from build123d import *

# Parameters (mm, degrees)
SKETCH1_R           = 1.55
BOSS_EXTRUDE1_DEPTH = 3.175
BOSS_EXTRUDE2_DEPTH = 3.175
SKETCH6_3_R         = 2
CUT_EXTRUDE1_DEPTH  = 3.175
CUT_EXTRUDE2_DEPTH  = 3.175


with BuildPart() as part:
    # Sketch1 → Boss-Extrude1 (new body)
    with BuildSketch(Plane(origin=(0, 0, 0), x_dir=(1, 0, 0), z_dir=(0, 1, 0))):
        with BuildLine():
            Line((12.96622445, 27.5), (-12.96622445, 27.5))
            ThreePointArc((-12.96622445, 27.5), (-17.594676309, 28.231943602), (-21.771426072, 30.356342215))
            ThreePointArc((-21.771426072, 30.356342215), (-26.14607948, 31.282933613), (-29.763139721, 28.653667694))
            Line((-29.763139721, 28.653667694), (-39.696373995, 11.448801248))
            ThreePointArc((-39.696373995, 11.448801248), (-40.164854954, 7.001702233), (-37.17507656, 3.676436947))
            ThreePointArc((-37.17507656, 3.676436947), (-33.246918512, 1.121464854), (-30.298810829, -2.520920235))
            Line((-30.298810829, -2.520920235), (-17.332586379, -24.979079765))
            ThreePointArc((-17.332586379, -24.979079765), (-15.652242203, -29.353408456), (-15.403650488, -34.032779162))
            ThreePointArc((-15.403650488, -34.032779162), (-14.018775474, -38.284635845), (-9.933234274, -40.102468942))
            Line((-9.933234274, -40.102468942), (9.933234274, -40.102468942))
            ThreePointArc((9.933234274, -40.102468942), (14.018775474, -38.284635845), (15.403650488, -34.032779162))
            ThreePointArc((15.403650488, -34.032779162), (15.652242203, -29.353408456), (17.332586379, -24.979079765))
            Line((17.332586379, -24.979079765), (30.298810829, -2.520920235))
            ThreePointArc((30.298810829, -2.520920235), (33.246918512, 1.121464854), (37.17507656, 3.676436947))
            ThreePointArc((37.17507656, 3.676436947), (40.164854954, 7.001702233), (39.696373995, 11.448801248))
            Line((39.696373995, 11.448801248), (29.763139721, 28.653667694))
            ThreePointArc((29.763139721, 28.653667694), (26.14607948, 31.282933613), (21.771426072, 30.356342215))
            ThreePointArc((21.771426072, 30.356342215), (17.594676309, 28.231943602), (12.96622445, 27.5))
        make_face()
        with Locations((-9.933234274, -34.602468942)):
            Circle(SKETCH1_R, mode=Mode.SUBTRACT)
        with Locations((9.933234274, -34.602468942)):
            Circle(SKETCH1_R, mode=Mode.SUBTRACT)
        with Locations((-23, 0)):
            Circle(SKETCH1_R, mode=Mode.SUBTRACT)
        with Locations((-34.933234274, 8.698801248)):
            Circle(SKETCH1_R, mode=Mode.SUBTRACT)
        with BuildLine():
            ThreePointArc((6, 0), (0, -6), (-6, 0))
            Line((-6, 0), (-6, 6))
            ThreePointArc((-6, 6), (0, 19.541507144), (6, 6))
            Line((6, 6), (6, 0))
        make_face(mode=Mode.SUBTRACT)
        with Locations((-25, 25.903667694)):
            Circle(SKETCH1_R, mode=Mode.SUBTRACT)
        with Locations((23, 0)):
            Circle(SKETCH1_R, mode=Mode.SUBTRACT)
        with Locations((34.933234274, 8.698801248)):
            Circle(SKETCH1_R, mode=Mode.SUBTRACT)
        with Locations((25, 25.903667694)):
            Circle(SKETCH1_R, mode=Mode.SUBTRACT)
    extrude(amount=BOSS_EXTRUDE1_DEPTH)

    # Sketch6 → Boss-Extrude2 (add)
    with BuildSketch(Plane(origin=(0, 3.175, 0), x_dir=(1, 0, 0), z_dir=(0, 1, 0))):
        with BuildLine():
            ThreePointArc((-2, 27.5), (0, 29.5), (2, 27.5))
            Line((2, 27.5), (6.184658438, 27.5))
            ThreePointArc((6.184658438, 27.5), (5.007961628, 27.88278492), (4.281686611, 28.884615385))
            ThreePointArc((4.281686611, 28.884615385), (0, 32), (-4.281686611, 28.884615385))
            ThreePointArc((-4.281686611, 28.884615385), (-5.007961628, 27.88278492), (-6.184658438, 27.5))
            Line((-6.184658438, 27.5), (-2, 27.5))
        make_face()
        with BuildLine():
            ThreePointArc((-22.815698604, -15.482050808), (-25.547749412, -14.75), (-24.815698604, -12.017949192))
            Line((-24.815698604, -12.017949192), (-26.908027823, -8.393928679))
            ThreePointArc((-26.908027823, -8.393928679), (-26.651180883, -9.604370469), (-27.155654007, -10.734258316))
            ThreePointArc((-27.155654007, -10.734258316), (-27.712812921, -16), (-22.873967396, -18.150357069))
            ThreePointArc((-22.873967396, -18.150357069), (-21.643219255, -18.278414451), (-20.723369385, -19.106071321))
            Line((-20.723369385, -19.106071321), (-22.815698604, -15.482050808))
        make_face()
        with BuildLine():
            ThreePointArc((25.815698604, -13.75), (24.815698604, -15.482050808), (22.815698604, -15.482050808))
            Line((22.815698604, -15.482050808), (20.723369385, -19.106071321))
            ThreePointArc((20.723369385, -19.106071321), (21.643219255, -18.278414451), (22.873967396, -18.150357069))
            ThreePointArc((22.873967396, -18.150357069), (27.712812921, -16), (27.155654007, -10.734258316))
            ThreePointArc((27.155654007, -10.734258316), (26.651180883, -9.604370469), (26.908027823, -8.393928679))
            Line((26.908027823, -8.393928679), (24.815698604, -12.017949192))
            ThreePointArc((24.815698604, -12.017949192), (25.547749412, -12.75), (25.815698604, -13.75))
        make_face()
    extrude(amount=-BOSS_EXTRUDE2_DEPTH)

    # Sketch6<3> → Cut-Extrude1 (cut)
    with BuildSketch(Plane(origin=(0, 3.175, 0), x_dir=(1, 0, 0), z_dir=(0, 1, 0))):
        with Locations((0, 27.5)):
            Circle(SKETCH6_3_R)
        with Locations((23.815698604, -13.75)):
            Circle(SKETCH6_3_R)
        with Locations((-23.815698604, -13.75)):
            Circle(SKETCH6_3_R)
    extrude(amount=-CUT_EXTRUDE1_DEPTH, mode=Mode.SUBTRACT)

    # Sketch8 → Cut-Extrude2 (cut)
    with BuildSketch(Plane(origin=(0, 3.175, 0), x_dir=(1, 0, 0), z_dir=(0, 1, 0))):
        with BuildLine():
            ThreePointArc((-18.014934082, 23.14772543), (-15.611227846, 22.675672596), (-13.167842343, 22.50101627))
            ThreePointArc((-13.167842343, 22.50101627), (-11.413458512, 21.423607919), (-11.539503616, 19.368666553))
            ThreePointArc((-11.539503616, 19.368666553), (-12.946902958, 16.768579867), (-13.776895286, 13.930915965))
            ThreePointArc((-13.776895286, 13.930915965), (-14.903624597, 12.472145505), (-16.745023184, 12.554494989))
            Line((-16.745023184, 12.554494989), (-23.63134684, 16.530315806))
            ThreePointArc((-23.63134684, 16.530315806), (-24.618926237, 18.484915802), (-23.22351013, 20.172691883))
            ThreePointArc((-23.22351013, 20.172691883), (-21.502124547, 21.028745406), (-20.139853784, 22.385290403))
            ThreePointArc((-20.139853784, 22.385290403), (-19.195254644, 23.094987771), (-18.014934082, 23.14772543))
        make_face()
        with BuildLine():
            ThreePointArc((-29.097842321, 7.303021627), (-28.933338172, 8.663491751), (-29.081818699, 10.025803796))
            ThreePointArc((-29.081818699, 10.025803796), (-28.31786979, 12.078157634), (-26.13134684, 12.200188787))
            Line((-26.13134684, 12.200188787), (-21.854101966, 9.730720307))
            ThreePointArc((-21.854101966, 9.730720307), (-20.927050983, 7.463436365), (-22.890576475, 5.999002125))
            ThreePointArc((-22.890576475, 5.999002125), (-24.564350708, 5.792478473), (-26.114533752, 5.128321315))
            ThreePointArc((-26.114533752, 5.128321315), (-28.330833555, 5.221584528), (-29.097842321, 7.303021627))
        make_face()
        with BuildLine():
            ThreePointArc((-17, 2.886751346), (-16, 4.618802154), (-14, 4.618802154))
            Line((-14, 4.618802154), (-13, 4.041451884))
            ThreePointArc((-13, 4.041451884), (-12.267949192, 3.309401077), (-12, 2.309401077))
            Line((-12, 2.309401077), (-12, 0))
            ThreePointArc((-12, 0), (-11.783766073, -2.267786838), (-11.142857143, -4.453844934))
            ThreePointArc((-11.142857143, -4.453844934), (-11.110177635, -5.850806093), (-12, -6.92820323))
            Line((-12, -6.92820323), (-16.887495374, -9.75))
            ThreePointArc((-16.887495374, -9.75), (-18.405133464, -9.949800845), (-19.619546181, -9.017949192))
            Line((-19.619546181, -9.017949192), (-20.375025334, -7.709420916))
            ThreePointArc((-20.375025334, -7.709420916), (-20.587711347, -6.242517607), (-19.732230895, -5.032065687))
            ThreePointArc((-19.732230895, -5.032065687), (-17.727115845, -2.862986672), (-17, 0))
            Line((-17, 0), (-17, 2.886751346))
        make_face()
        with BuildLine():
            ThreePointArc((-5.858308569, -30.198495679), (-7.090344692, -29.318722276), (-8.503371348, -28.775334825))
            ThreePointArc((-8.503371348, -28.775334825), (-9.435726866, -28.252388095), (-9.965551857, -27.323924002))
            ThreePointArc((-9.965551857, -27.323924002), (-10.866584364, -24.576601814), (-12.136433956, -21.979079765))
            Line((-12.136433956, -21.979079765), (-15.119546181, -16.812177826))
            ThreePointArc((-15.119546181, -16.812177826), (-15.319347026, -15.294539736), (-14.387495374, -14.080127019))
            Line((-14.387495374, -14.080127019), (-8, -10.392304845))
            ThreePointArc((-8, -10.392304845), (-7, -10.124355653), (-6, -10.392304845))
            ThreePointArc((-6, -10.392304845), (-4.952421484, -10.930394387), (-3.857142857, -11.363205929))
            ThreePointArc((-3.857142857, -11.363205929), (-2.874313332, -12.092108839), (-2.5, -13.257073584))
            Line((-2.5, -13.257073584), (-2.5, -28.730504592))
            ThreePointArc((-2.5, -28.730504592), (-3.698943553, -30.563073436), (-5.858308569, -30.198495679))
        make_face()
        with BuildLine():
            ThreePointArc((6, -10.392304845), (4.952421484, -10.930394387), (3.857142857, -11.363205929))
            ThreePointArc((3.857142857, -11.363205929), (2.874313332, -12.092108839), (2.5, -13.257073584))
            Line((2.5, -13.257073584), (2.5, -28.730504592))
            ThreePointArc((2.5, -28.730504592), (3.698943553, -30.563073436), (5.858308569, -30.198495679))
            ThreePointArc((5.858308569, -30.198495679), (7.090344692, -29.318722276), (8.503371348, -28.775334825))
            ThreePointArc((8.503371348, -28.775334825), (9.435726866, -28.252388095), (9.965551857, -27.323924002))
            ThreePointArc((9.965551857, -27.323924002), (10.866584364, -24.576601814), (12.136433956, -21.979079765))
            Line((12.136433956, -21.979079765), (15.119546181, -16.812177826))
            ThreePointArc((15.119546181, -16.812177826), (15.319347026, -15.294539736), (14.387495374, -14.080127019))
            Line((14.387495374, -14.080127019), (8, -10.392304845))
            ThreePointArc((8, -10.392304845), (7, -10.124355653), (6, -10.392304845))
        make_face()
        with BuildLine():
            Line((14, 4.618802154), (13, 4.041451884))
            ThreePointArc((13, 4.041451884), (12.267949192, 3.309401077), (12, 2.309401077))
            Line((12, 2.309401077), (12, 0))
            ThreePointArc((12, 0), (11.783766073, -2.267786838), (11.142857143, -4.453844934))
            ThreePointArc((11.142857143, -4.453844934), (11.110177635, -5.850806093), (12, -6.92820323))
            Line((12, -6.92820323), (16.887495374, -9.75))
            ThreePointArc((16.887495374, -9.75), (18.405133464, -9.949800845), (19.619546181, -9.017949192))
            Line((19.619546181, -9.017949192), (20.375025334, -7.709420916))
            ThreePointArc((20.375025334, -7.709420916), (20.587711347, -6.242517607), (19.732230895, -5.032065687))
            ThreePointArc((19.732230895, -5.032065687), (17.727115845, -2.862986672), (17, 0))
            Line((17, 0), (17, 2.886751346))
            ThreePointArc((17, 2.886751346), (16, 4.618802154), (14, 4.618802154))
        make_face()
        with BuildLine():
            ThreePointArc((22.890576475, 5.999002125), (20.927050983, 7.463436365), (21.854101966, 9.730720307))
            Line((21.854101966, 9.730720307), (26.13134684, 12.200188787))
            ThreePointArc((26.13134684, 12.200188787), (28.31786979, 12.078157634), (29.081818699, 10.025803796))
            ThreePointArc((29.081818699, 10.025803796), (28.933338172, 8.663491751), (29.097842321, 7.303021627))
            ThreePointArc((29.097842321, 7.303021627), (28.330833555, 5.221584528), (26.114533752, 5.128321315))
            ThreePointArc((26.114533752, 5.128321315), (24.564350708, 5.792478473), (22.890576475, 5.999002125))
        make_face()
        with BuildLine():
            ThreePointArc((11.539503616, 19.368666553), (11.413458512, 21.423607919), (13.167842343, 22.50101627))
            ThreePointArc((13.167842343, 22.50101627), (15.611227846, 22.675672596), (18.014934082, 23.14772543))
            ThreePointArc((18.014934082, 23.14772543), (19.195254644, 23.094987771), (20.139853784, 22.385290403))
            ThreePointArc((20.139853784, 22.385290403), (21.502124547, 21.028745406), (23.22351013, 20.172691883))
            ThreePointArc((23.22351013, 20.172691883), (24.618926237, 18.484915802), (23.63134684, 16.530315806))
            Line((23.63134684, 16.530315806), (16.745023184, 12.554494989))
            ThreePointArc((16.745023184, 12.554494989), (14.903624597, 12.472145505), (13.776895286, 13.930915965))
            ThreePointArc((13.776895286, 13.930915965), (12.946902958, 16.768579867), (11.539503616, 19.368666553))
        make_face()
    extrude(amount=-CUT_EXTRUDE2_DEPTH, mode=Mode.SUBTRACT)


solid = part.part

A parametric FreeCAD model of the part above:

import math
import FreeCAD as App
import Part
import Sketcher

V = App.Vector
Q = App.Units.Quantity

doc = App.newDocument("Part")
body = doc.addObject("PartDesign::Body", "Body")

# Sketch on XZ plane
sketch1 = body.newObject("Sketcher::SketchObject", "Sketch")
sketch1.AttachmentSupport = (doc.getObject("XZ_Plane"), [""])
sketch1.MapMode = "FlatFace"
sketch1.addGeometry([
    Part.LineSegment(V(13, -27.5, 0), V(-13, -27.5, 0)),  # 0
    Part.ArcOfCircle(Part.Circle(V(-13, -42.5, 0), V(0, 0, 1), 15), math.radians(90), math.radians(126)),  # 1
    Part.ArcOfCircle(Part.Circle(V(-25, -25.9, 0), V(0, 0, 1), 5.5), math.radians(-150), math.radians(-54)),  # 2
    Part.LineSegment(V(-29.8, -28.7, 0), V(-39.7, -11.4, 0)),  # 3
    Part.ArcOfCircle(Part.Circle(V(-34.9, -8.7, 0), V(0, 0, 1), 5.5), math.radians(114), math.radians(210)),  # 4
    Part.ArcOfCircle(Part.Circle(V(-43.3, 10, 0), V(0, 0, 1), 15), math.radians(-66), math.radians(-30)),  # 5
    Part.LineSegment(V(-30.3, 2.5, 0), V(-17.3, 25, 0)),  # 6
    Part.ArcOfCircle(Part.Circle(V(-30.3, 32.5, 0), V(0, 0, 1), 15), math.radians(-30), math.radians(6)),  # 7
    Part.ArcOfCircle(Part.Circle(V(-9.9, 34.6, 0), V(0, 0, 1), 5.5), math.radians(90), math.radians(186)),  # 8
    Part.LineSegment(V(-9.9, 40.1, 0), V(9.9, 40.1, 0)),  # 9
    Part.ArcOfCircle(Part.Circle(V(9.9, 34.6, 0), V(0, 0, 1), 5.5), math.radians(-6), math.radians(90)),  # 10
    Part.ArcOfCircle(Part.Circle(V(30.3, 32.5, 0), V(0, 0, 1), 15), math.radians(174), math.radians(210)),  # 11
    Part.LineSegment(V(17.3, 25, 0), V(30.3, 2.5, 0)),  # 12
    Part.ArcOfCircle(Part.Circle(V(43.3, 10, 0), V(0, 0, 1), 15), math.radians(-150), math.radians(-114)),  # 13
    Part.ArcOfCircle(Part.Circle(V(34.9, -8.7, 0), V(0, 0, 1), 5.5), math.radians(-30), math.radians(66)),  # 14
    Part.LineSegment(V(39.7, -11.4, 0), V(29.8, -28.7, 0)),  # 15
    Part.ArcOfCircle(Part.Circle(V(25, -25.9, 0), V(0, 0, 1), 5.5), math.radians(-126), math.radians(-30)),  # 16
    Part.ArcOfCircle(Part.Circle(V(13, -42.5, 0), V(0, 0, 1), 15), math.radians(54), math.radians(90)),  # 17
    Part.Circle(V(-9.9, 34.6, 0), V(0, 0, 1), 1.6),  # 18
    Part.Circle(V(9.9, 34.6, 0), V(0, 0, 1), 1.6),  # 19
    Part.Circle(V(-23, 0, 0), V(0, 0, 1), 1.6),  # 20
    Part.Circle(V(-34.9, -8.7, 0), V(0, 0, 1), 1.6),  # 21
    Part.Circle(V(-25, -25.9, 0), V(0, 0, 1), 1.6),  # 22
    Part.LineSegment(V(6, -6, 0), V(6, 0, 0)),  # 23
    Part.ArcOfCircle(Part.Circle(V(0, 0, 0), V(0, 0, 1), 6), math.radians(0), math.radians(180)),  # 24
    Part.LineSegment(V(-6, 0, 0), V(-6, -6, 0)),  # 25
    Part.ArcOfCircle(Part.Circle(V(0, -11.4, 0), V(0, 0, 1), 8.1), math.radians(138), math.radians(402)),  # 26
    Part.Circle(V(23, 0, 0), V(0, 0, 1), 1.6),  # 27
    Part.Circle(V(34.9, -8.7, 0), V(0, 0, 1), 1.6),  # 28
    Part.Circle(V(25, -25.9, 0), V(0, 0, 1), 1.6),  # 29
], False)
sketch1.addConstraint([
    Sketcher.Constraint("Tangent", 0, 2, 1, 1),
    Sketcher.Constraint("Tangent", 1, 2, 2, 2),
    Sketcher.Constraint("Tangent", 2, 1, 3, 1),
    Sketcher.Constraint("Tangent", 3, 2, 4, 2),
    Sketcher.Constraint("Tangent", 4, 1, 5, 1),
    Sketcher.Constraint("Tangent", 5, 2, 6, 1),
    Sketcher.Constraint("Tangent", 6, 2, 7, 1),
    Sketcher.Constraint("Tangent", 7, 2, 8, 2),
    Sketcher.Constraint("Tangent", 8, 1, 9, 1),
    Sketcher.Constraint("Tangent", 9, 2, 10, 2),
    Sketcher.Constraint("Tangent", 10, 1, 11, 1),
    Sketcher.Constraint("Tangent", 11, 2, 12, 1),
    Sketcher.Constraint("Tangent", 12, 2, 13, 1),
    Sketcher.Constraint("Tangent", 13, 2, 14, 2),
    Sketcher.Constraint("Tangent", 14, 1, 15, 1),
    Sketcher.Constraint("Tangent", 15, 2, 16, 2),
    Sketcher.Constraint("Tangent", 16, 1, 17, 1),
    Sketcher.Constraint("Tangent", 17, 2, 0, 1),
    Sketcher.Constraint("Tangent", 23, 2, 24, 1),
    Sketcher.Constraint("Tangent", 24, 2, 25, 1),
    Sketcher.Constraint("Coincident", 25, 2, 26, 1),
    Sketcher.Constraint("Coincident", 26, 2, 23, 1),
    Sketcher.Constraint("Horizontal", 0),
    Sketcher.Constraint("Horizontal", 9),
    Sketcher.Constraint("Vertical", 23),
    Sketcher.Constraint("Vertical", 25),
    Sketcher.Constraint("Coincident", 24, 3, -1, 1),
    Sketcher.Constraint("Coincident", 18, 3, 8, 3),
    Sketcher.Constraint("Coincident", 19, 3, 10, 3),
    Sketcher.Constraint("Coincident", 21, 3, 4, 3),
    Sketcher.Constraint("Coincident", 22, 3, 2, 3),
    Sketcher.Constraint("Coincident", 28, 3, 14, 3),
    Sketcher.Constraint("Coincident", 29, 3, 16, 3),
    Sketcher.Constraint("Equal", 2, 4),
    Sketcher.Constraint("Equal", 1, 5),
    Sketcher.Constraint("Equal", 5, 7),
    Sketcher.Constraint("Equal", 4, 8),
    Sketcher.Constraint("Equal", 8, 10),
    Sketcher.Constraint("Equal", 7, 11),
    Sketcher.Constraint("Equal", 11, 13),
    Sketcher.Constraint("Equal", 10, 14),
    Sketcher.Constraint("Equal", 14, 16),
    Sketcher.Constraint("Equal", 13, 17),
    Sketcher.Constraint("Equal", 18, 19),
    Sketcher.Constraint("Equal", 19, 20),
    Sketcher.Constraint("Equal", 20, 21),
    Sketcher.Constraint("Equal", 21, 22),
    Sketcher.Constraint("Equal", 22, 27),
    Sketcher.Constraint("Equal", 27, 28),
    Sketcher.Constraint("Equal", 28, 29),
    Sketcher.Constraint("Symmetric", 20, 3, 27, 3, -1, 1),
    Sketcher.Constraint("Symmetric", 7, 3, 11, 3, -2),
    Sketcher.Constraint("Symmetric", 5, 3, 13, 3, -2),
    Sketcher.Constraint("Symmetric", 2, 3, 16, 3, -2),
    Sketcher.Constraint("PointOnObject", 20, 3, -1),
    Sketcher.Constraint("PointOnObject", 26, 3, -2),
    Sketcher.Constraint("Parallel", 3, 12),
    Sketcher.Constraint("Parallel", 6, 15),
    Sketcher.Constraint("Radius", 1, Q("15 mm")),
    Sketcher.Constraint("Radius", 24, Q("6 mm")),
    Sketcher.Constraint("Diameter", 18, Q("3.1 mm")),
    Sketcher.Constraint("Radius", 2, Q("5.5 mm")),
    Sketcher.Constraint("Radius", 26, Q("8.1 mm")),
    Sketcher.Constraint("DistanceY", 23, 1, 23, 2, Q("6 mm")),
    Sketcher.Constraint("Angle", 3, Q("120 deg")),
    Sketcher.Constraint("DistanceX", 2, 3, -1, 1, Q("25 mm")),
    Sketcher.Constraint("DistanceX", 20, 3, -1, 1, Q("23 mm")),
    Sketcher.Constraint("DistanceX", 4, 3, 8, 3, Q("25 mm")),
    Sketcher.Constraint("DistanceY", 1, 3, -1, 1, Q("42.5 mm")),
    Sketcher.Constraint("DistanceX", 0, 2, 0, 1, Q("25.932449 mm")),
    Sketcher.Constraint("DistanceX", 9, 1, 9, 2, Q("19.866469 mm")),
    Sketcher.Constraint("DistanceX", 7, 3, 10, 3, Q("40.256202 mm")),
    Sketcher.Constraint("Distance", 6, Q("25.932449 mm")),
])
pad1 = body.newObject("PartDesign::Pad", "Pad")
pad1.Profile = sketch1
pad1.Length = 3.175
pad1.Reversed = True

# Sketch on XZ plane
sketch2 = body.newObject("Sketcher::SketchObject", "Sketch001")
sketch2.AttachmentSupport = (doc.getObject("XZ_Plane"), [""])
sketch2.MapMode = "FlatFace"
sketch2.AttachmentOffset = App.Placement(V(0, 0, -3.175), App.Rotation())
sketch2.addGeometry([
    Part.ArcOfCircle(Part.Circle(V(0, -27.5, 0), V(0, 0, 1), 2), math.radians(180), math.radians(360)),  # 0
    Part.LineSegment(V(2, -27.5, 0), V(6.2, -27.5, 0)),  # 1
    Part.ArcOfCircle(Part.Circle(V(6.2, -29.5, 0), V(0, 0, 1), 2), math.radians(90), math.radians(162)),  # 2
    Part.ArcOfCircle(Part.Circle(V(0, -27.5, 0), V(0, 0, 1), 4.5), math.radians(-162), math.radians(-18)),  # 3
    Part.ArcOfCircle(Part.Circle(V(-6.2, -29.5, 0), V(0, 0, 1), 2), math.radians(18), math.radians(90)),  # 4
    Part.LineSegment(V(-6.2, -27.5, 0), V(-2, -27.5, 0)),  # 5
    Part.ArcOfCircle(Part.Circle(V(-23.8, 13.8, 0), V(0, 0, 1), 2), math.radians(60), math.radians(240)),  # 6
    Part.LineSegment(V(-24.8, 12, 0), V(-26.9, 8.4, 0)),  # 7
    Part.ArcOfCircle(Part.Circle(V(-28.6, 9.4, 0), V(0, 0, 1), 2), math.radians(-30), math.radians(42)),  # 8
    Part.ArcOfCircle(Part.Circle(V(-23.8, 13.8, 0), V(0, 0, 1), 4.5), math.radians(78), math.radians(222)),  # 9
    Part.ArcOfCircle(Part.Circle(V(-22.5, 20.1, 0), V(0, 0, 1), 2), math.radians(-102), math.radians(-30)),  # 10
    Part.LineSegment(V(-20.7, 19.1, 0), V(-22.8, 15.5, 0)),  # 11
    Part.ArcOfCircle(Part.Circle(V(23.8, 13.8, 0), V(0, 0, 1), 2), math.radians(0), math.radians(120)),  # 12
    Part.LineSegment(V(22.8, 15.5, 0), V(20.7, 19.1, 0)),  # 13
    Part.ArcOfCircle(Part.Circle(V(22.5, 20.1, 0), V(0, 0, 1), 2), math.radians(-150), math.radians(-78)),  # 14
    Part.ArcOfCircle(Part.Circle(V(23.8, 13.8, 0), V(0, 0, 1), 4.5), math.radians(-42), math.radians(102)),  # 15
    Part.ArcOfCircle(Part.Circle(V(28.6, 9.4, 0), V(0, 0, 1), 2), math.radians(138), math.radians(210)),  # 16
    Part.LineSegment(V(26.9, 8.4, 0), V(24.8, 12, 0)),  # 17
    Part.ArcOfCircle(Part.Circle(V(23.8, 13.7, 0), V(0, 0, 1), 2), math.radians(-60), math.radians(0)),  # 18
], False)
sketch2.addConstraint([
    Sketcher.Constraint("Coincident", 0, 2, 1, 1),
    Sketcher.Constraint("Tangent", 1, 2, 2, 1),
    Sketcher.Constraint("Tangent", 2, 2, 3, 2),
    Sketcher.Constraint("Tangent", 3, 1, 4, 1),
    Sketcher.Constraint("Tangent", 4, 2, 5, 1),
    Sketcher.Constraint("Coincident", 5, 2, 0, 1),
    Sketcher.Constraint("Coincident", 6, 2, 7, 1),
    Sketcher.Constraint("Tangent", 7, 2, 8, 1),
    Sketcher.Constraint("Tangent", 8, 2, 9, 2),
    Sketcher.Constraint("Tangent", 9, 1, 10, 1),
    Sketcher.Constraint("Tangent", 10, 2, 11, 1),
    Sketcher.Constraint("Coincident", 11, 2, 6, 1),
    Sketcher.Constraint("Coincident", 12, 2, 13, 1),
    Sketcher.Constraint("Tangent", 13, 2, 14, 1),
    Sketcher.Constraint("Tangent", 14, 2, 15, 2),
    Sketcher.Constraint("Tangent", 15, 1, 16, 1),
    Sketcher.Constraint("Tangent", 16, 2, 17, 1),
    Sketcher.Constraint("Coincident", 17, 2, 18, 1),
    Sketcher.Constraint("Tangent", 18, 2, 12, 1),
    Sketcher.Constraint("Horizontal", 1),
    Sketcher.Constraint("Horizontal", 5),
    Sketcher.Constraint("Coincident", 3, 3, 0, 3),
    Sketcher.Constraint("Coincident", 9, 3, 6, 3),
    Sketcher.Constraint("Coincident", 15, 3, 12, 3),
    Sketcher.Constraint("Equal", 0, 2),
    Sketcher.Constraint("Equal", 2, 4),
    Sketcher.Constraint("Equal", 4, 6),
    Sketcher.Constraint("Equal", 6, 8),
    Sketcher.Constraint("Equal", 3, 9),
    Sketcher.Constraint("Equal", 8, 10),
    Sketcher.Constraint("Equal", 10, 12),
    Sketcher.Constraint("Equal", 12, 14),
    Sketcher.Constraint("Equal", 9, 15),
    Sketcher.Constraint("Equal", 14, 16),
    Sketcher.Constraint("Equal", 16, 18),
    Sketcher.Constraint("Symmetric", 2, 3, 4, 3, -2),
    Sketcher.Constraint("Symmetric", 6, 3, 12, 3, -2),
    Sketcher.Constraint("Symmetric", 10, 2, 13, 2, -2),
    Sketcher.Constraint("Symmetric", 7, 2, 16, 2, -2),
    Sketcher.Constraint("Parallel", 7, 11),
    Sketcher.Constraint("Horizontal", 3, 3, 0, 2),
    Sketcher.Constraint("Horizontal", 15, 3, 18, 2),
    Sketcher.Constraint("Equal", 7, 11),
    Sketcher.Constraint("Radius", 0, Q("2 mm")),
    Sketcher.Constraint("Radius", 3, Q("4.5 mm")),
    Sketcher.Constraint("Angle", 7, Q("-120 deg")),
    Sketcher.Constraint("DistanceX", 6, 2, 6, 3, Q("1 mm")),
    Sketcher.Constraint("DistanceY", 0, 3, -1, 1, Q("27.5 mm")),
    Sketcher.Constraint("DistanceY", -1, 1, 6, 3, Q("13.75 mm")),
    Sketcher.Constraint("DistanceX", 6, 3, -1, 1, Q("23.815699 mm")),
])
pad2 = body.newObject("PartDesign::Pad", "Pad001")
pad2.Profile = sketch2
pad2.Length = 3.175

# Sketch on XZ plane
sketch3 = body.newObject("Sketcher::SketchObject", "Sketch002")
sketch3.AttachmentSupport = (doc.getObject("XZ_Plane"), [""])
sketch3.MapMode = "FlatFace"
sketch3.AttachmentOffset = App.Placement(V(0, 0, -3.175), App.Rotation())
sketch3.addGeometry([
    Part.Circle(V(0, -27.5, 0), V(0, 0, 1), 2),
    Part.Circle(V(23.8, 13.8, 0), V(0, 0, 1), 2),
    Part.Circle(V(-23.8, 13.8, 0), V(0, 0, 1), 2),
], False)
sketch3.addConstraint([
    Sketcher.Constraint("Equal", 0, 1),
    Sketcher.Constraint("Equal", 1, 2),
    Sketcher.Constraint("Symmetric", 1, 3, 2, 3, -2),
    Sketcher.Constraint("PointOnObject", 0, 3, -2),
    Sketcher.Constraint("Diameter", 0, Q("4 mm")),
    Sketcher.Constraint("DistanceY", 0, 3, -1, 1, Q("27.5 mm")),
    Sketcher.Constraint("DistanceY", -1, 1, 1, 3, Q("13.75 mm")),
    Sketcher.Constraint("DistanceX", -1, 1, 1, 3, Q("23.815699 mm")),
])
pocket1 = body.newObject("PartDesign::Pocket", "Pocket")
pocket1.Profile = sketch3
pocket1.Length = 3.175
pocket1.Reversed = True

# Sketch on XZ plane
sketch4 = body.newObject("Sketcher::SketchObject", "Sketch003")
sketch4.AttachmentSupport = (doc.getObject("XZ_Plane"), [""])
sketch4.MapMode = "FlatFace"
sketch4.AttachmentOffset = App.Placement(V(0, 0, -3.175), App.Rotation())
sketch4.addGeometry([
    Part.ArcOfCircle(Part.Circle(V(-13, -42.5, 0), V(0, 0, 1), 20), math.radians(90.58), math.radians(104.62)),  # 0
    Part.ArcOfCircle(Part.Circle(V(-18.5, -21.2, 0), V(0, 0, 1), 2), math.radians(-144), math.radians(-75)),  # 1
    Part.ArcOfCircle(Part.Circle(V(-25, -25.9, 0), V(0, 0, 1), 6), math.radians(36), math.radians(73)),  # 2
    Part.ArcOfCircle(Part.Circle(V(-22.6, -18.3, 0), V(0, 0, 1), 2), math.radians(120), math.radians(253)),  # 3
    Part.LineSegment(V(-23.6, -16.5, 0), V(-16.7, -12.6, 0)),  # 4
    Part.ArcOfCircle(Part.Circle(V(-15.7, -14.3, 0), V(0, 0, 1), 2), math.radians(10), math.radians(120)),  # 5
    Part.ArcOfCircle(Part.Circle(V(0, -11.4, 0), V(0, 0, 1), 14), math.radians(-170), math.radians(-146)),  # 6
    Part.ArcOfCircle(Part.Circle(V(-13.2, -20.5, 0), V(0, 0, 1), 2), math.radians(-89), math.radians(34)),  # 7
    Part.ArcOfCircle(Part.Circle(V(-34.9, -8.7, 0), V(0, 0, 1), 6), math.radians(-13), math.radians(13)),  # 8
    Part.ArcOfCircle(Part.Circle(V(-27.2, -6.8, 0), V(0, 0, 1), 2), math.radians(59), math.radians(193)),  # 9
    Part.ArcOfCircle(Part.Circle(V(-23, 0, 0), V(0, 0, 1), 6), math.radians(-121), math.radians(-89)),  # 10
    Part.ArcOfCircle(Part.Circle(V(-22.9, -8, 0), V(0, 0, 1), 2), math.radians(-60), math.radians(91)),  # 11
    Part.LineSegment(V(-21.9, -9.7, 0), V(-26.1, -12.2, 0)),  # 12
    Part.ArcOfCircle(Part.Circle(V(-27.1, -10.5, 0), V(0, 0, 1), 2), math.radians(167), math.radians(300)),  # 13
    Part.ArcOfCircle(Part.Circle(V(-15, -2.9, 0), V(0, 0, 1), 2), math.radians(180), math.radians(300)),  # 14
    Part.LineSegment(V(-17, -2.9, 0), V(-17, 0, 0)),  # 15
    Part.ArcOfCircle(Part.Circle(V(-23, 0, 0), V(0, 0, 1), 6), math.radians(0), math.radians(57)),  # 16
    Part.ArcOfCircle(Part.Circle(V(-18.6, 6.7, 0), V(0, 0, 1), 2), math.radians(150), math.radians(237)),  # 17
    Part.LineSegment(V(-20.4, 7.7, 0), V(-19.6, 9, 0)),  # 18
    Part.ArcOfCircle(Part.Circle(V(-17.9, 8, 0), V(0, 0, 1), 2), math.radians(60), math.radians(150)),  # 19
    Part.LineSegment(V(-16.9, 9.8, 0), V(-12, 6.9, 0)),  # 20
    Part.ArcOfCircle(Part.Circle(V(-13, 5.2, 0), V(0, 0, 1), 2), math.radians(-22), math.radians(60)),  # 21
    Part.ArcOfCircle(Part.Circle(V(0, 0, 0), V(0, 0, 1), 12), math.radians(158), math.radians(180)),  # 22
    Part.LineSegment(V(-12, 0, 0), V(-12, -2.3, 0)),  # 23
    Part.ArcOfCircle(Part.Circle(V(-14, -2.3, 0), V(0, 0, 1), 2), math.radians(-60), math.radians(0)),  # 24
    Part.LineSegment(V(-13, -4, 0), V(-14, -4.6, 0)),  # 25
    Part.ArcOfCircle(Part.Circle(V(-9.9, 34.6, 0), V(0, 0, 1), 6), math.radians(-76), math.radians(-47)),  # 26
    Part.ArcOfCircle(Part.Circle(V(-4.5, 28.7, 0), V(0, 0, 1), 2), math.radians(0), math.radians(133)),  # 27
    Part.LineSegment(V(-2.5, 28.7, 0), V(-2.5, 13.3, 0)),  # 28
    Part.ArcOfCircle(Part.Circle(V(-4.5, 13.3, 0), V(0, 0, 1), 2), math.radians(-71), math.radians(0)),  # 29
    Part.ArcOfCircle(Part.Circle(V(0, 0, 0), V(0, 0, 1), 12), math.radians(108.75), math.radians(120)),  # 30
    Part.ArcOfCircle(Part.Circle(V(-7, 12.1, 0), V(0, 0, 1), 2), math.radians(-120), math.radians(-60)),  # 31
    Part.LineSegment(V(-8, 10.4, 0), V(-14.4, 14.1, 0)),  # 32
    Part.ArcOfCircle(Part.Circle(V(-13.4, 15.8, 0), V(0, 0, 1), 2), math.radians(150), math.radians(240)),  # 33
    Part.LineSegment(V(-15.1, 16.8, 0), V(-12.1, 22, 0)),  # 34
    Part.ArcOfCircle(Part.Circle(V(-30.3, 32.5, 0), V(0, 0, 1), 21), math.radians(-30), math.radians(-14.21)),  # 35
    Part.ArcOfCircle(Part.Circle(V(-8, 26.8, 0), V(0, 0, 1), 2), math.radians(104), math.radians(166)),  # 36
    Part.ArcOfCircle(Part.Circle(V(0, 0, 0), V(0, 0, 1), 12), math.radians(60), math.radians(71.25)),  # 37
    Part.ArcOfCircle(Part.Circle(V(4.5, 13.3, 0), V(0, 0, 1), 2), math.radians(-180), math.radians(-109)),  # 38
    Part.LineSegment(V(2.5, 13.3, 0), V(2.5, 28.7, 0)),  # 39
    Part.ArcOfCircle(Part.Circle(V(4.5, 28.7, 0), V(0, 0, 1), 2), math.radians(47), math.radians(180)),  # 40
    Part.ArcOfCircle(Part.Circle(V(9.9, 34.6, 0), V(0, 0, 1), 6), math.radians(-133), math.radians(-104)),  # 41
    Part.ArcOfCircle(Part.Circle(V(8, 26.8, 0), V(0, 0, 1), 2), math.radians(14), math.radians(76)),  # 42
    Part.ArcOfCircle(Part.Circle(V(30.3, 32.5, 0), V(0, 0, 1), 21), math.radians(-165.79), math.radians(-150)),  # 43
    Part.LineSegment(V(12.1, 22, 0), V(15.1, 16.8, 0)),  # 44
    Part.ArcOfCircle(Part.Circle(V(13.4, 15.8, 0), V(0, 0, 1), 2), math.radians(-60), math.radians(30)),  # 45
    Part.LineSegment(V(14.4, 14.1, 0), V(8, 10.4, 0)),  # 46
    Part.ArcOfCircle(Part.Circle(V(7, 12.1, 0), V(0, 0, 1), 2), math.radians(-120), math.radians(-60)),  # 47
    Part.LineSegment(V(14, -4.6, 0), V(13, -4, 0)),  # 48
    Part.ArcOfCircle(Part.Circle(V(14, -2.3, 0), V(0, 0, 1), 2), math.radians(180), math.radians(240)),  # 49
    Part.LineSegment(V(12, -2.3, 0), V(12, 0, 0)),  # 50
    Part.ArcOfCircle(Part.Circle(V(0, 0, 0), V(0, 0, 1), 12), math.radians(0), math.radians(22)),  # 51
    Part.ArcOfCircle(Part.Circle(V(13, 5.2, 0), V(0, 0, 1), 2), math.radians(120), math.radians(202)),  # 52
    Part.LineSegment(V(12, 6.9, 0), V(16.9, 9.8, 0)),  # 53
    Part.ArcOfCircle(Part.Circle(V(17.9, 8, 0), V(0, 0, 1), 2), math.radians(30), math.radians(120)),  # 54
    Part.LineSegment(V(19.6, 9, 0), V(20.4, 7.7, 0)),  # 55
    Part.ArcOfCircle(Part.Circle(V(18.6, 6.7, 0), V(0, 0, 1), 2), math.radians(-57), math.radians(30)),  # 56
    Part.ArcOfCircle(Part.Circle(V(23, 0, 0), V(0, 0, 1), 6), math.radians(123), math.radians(180)),  # 57
    Part.LineSegment(V(17, 0, 0), V(17, -2.9, 0)),  # 58
    Part.ArcOfCircle(Part.Circle(V(15, -2.9, 0), V(0, 0, 1), 2), math.radians(-120), math.radians(0)),  # 59
    Part.ArcOfCircle(Part.Circle(V(22.9, -8, 0), V(0, 0, 1), 2), math.radians(89), math.radians(240)),  # 60
    Part.ArcOfCircle(Part.Circle(V(23, 0, 0), V(0, 0, 1), 6), math.radians(-91), math.radians(-59)),  # 61
    Part.ArcOfCircle(Part.Circle(V(27.2, -6.8, 0), V(0, 0, 1), 2), math.radians(-13), math.radians(121)),  # 62
    Part.ArcOfCircle(Part.Circle(V(34.9, -8.7, 0), V(0, 0, 1), 6), math.radians(167), math.radians(193)),  # 63
    Part.ArcOfCircle(Part.Circle(V(27.1, -10.5, 0), V(0, 0, 1), 2), math.radians(-120), math.radians(13)),  # 64
    Part.LineSegment(V(26.1, -12.2, 0), V(21.9, -9.7, 0)),  # 65
    Part.ArcOfCircle(Part.Circle(V(13.2, -20.5, 0), V(0, 0, 1), 2), math.radians(146), math.radians(269)),  # 66
    Part.ArcOfCircle(Part.Circle(V(0, -11.4, 0), V(0, 0, 1), 14), math.radians(-34), math.radians(-10)),  # 67
    Part.ArcOfCircle(Part.Circle(V(15.7, -14.3, 0), V(0, 0, 1), 2), math.radians(60), math.radians(170)),  # 68
    Part.LineSegment(V(16.7, -12.6, 0), V(23.6, -16.5, 0)),  # 69
    Part.ArcOfCircle(Part.Circle(V(22.6, -18.3, 0), V(0, 0, 1), 2), math.radians(-73), math.radians(60)),  # 70
    Part.ArcOfCircle(Part.Circle(V(25, -25.9, 0), V(0, 0, 1), 6), math.radians(107), math.radians(144)),  # 71
    Part.ArcOfCircle(Part.Circle(V(18.5, -21.2, 0), V(0, 0, 1), 2), math.radians(-105), math.radians(-36)),  # 72
    Part.ArcOfCircle(Part.Circle(V(13, -42.5, 0), V(0, 0, 1), 20), math.radians(75.38), math.radians(89.42)),  # 73
], False)
sketch4.addConstraint([
    Sketcher.Constraint("Tangent", 0, 2, 1, 2),
    Sketcher.Constraint("Tangent", 1, 1, 2, 1),
    Sketcher.Constraint("Tangent", 2, 2, 3, 2),
    Sketcher.Constraint("Tangent", 3, 1, 4, 1),
    Sketcher.Constraint("Tangent", 4, 2, 5, 2),
    Sketcher.Constraint("Tangent", 5, 1, 6, 1),
    Sketcher.Constraint("Tangent", 6, 2, 7, 2),
    Sketcher.Constraint("Tangent", 7, 1, 0, 1),
    Sketcher.Constraint("Tangent", 8, 2, 9, 2),
    Sketcher.Constraint("Tangent", 9, 1, 10, 1),
    Sketcher.Constraint("Tangent", 10, 2, 11, 2),
    Sketcher.Constraint("Tangent", 11, 1, 12, 1),
    Sketcher.Constraint("Tangent", 12, 2, 13, 2),
    Sketcher.Constraint("Tangent", 13, 1, 8, 1),
    Sketcher.Constraint("Tangent", 14, 1, 15, 1),
    Sketcher.Constraint("Tangent", 15, 2, 16, 1),
    Sketcher.Constraint("Tangent", 16, 2, 17, 2),
    Sketcher.Constraint("Tangent", 17, 1, 18, 1),
    Sketcher.Constraint("Tangent", 18, 2, 19, 2),
    Sketcher.Constraint("Tangent", 19, 1, 20, 1),
    Sketcher.Constraint("Tangent", 20, 2, 21, 2),
    Sketcher.Constraint("Tangent", 21, 1, 22, 1),
    Sketcher.Constraint("Tangent", 22, 2, 23, 1),
    Sketcher.Constraint("Tangent", 23, 2, 24, 2),
    Sketcher.Constraint("Tangent", 24, 1, 25, 1),
    Sketcher.Constraint("Tangent", 25, 2, 14, 2),
    Sketcher.Constraint("Tangent", 26, 2, 27, 2),
    Sketcher.Constraint("Tangent", 27, 1, 28, 1),
    Sketcher.Constraint("Tangent", 28, 2, 29, 2),
    Sketcher.Constraint("Tangent", 29, 1, 30, 1),
    Sketcher.Constraint("Tangent", 30, 2, 31, 2),
    Sketcher.Constraint("Tangent", 31, 1, 32, 1),
    Sketcher.Constraint("Tangent", 32, 2, 33, 2),
    Sketcher.Constraint("Tangent", 33, 1, 34, 1),
    Sketcher.Constraint("Tangent", 34, 2, 35, 1),
    Sketcher.Constraint("Tangent", 35, 2, 36, 2),
    Sketcher.Constraint("Tangent", 36, 1, 26, 1),
    Sketcher.Constraint("Tangent", 37, 2, 38, 2),
    Sketcher.Constraint("Tangent", 38, 1, 39, 1),
    Sketcher.Constraint("Tangent", 39, 2, 40, 2),
    Sketcher.Constraint("Tangent", 40, 1, 41, 1),
    Sketcher.Constraint("Tangent", 41, 2, 42, 2),
    Sketcher.Constraint("Tangent", 42, 1, 43, 1),
    Sketcher.Constraint("Tangent", 43, 2, 44, 1),
    Sketcher.Constraint("Tangent", 44, 2, 45, 2),
    Sketcher.Constraint("Tangent", 45, 1, 46, 1),
    Sketcher.Constraint("Tangent", 46, 2, 47, 2),
    Sketcher.Constraint("Tangent", 47, 1, 37, 1),
    Sketcher.Constraint("Tangent", 48, 2, 49, 2),
    Sketcher.Constraint("Tangent", 49, 1, 50, 1),
    Sketcher.Constraint("Tangent", 50, 2, 51, 1),
    Sketcher.Constraint("Tangent", 51, 2, 52, 2),
    Sketcher.Constraint("Tangent", 52, 1, 53, 1),
    Sketcher.Constraint("Tangent", 53, 2, 54, 2),
    Sketcher.Constraint("Tangent", 54, 1, 55, 1),
    Sketcher.Constraint("Tangent", 55, 2, 56, 2),
    Sketcher.Constraint("Tangent", 56, 1, 57, 1),
    Sketcher.Constraint("Tangent", 57, 2, 58, 1),
    Sketcher.Constraint("Tangent", 58, 2, 59, 2),
    Sketcher.Constraint("Tangent", 59, 1, 48, 1),
    Sketcher.Constraint("Tangent", 60, 1, 61, 1),
    Sketcher.Constraint("Tangent", 61, 2, 62, 2),
    Sketcher.Constraint("Tangent", 62, 1, 63, 1),
    Sketcher.Constraint("Tangent", 63, 2, 64, 2),
    Sketcher.Constraint("Tangent", 64, 1, 65, 1),
    Sketcher.Constraint("Tangent", 65, 2, 60, 2),
    Sketcher.Constraint("Tangent", 66, 1, 67, 1),
    Sketcher.Constraint("Tangent", 67, 2, 68, 2),
    Sketcher.Constraint("Tangent", 68, 1, 69, 1),
    Sketcher.Constraint("Tangent", 69, 2, 70, 2),
    Sketcher.Constraint("Tangent", 70, 1, 71, 1),
    Sketcher.Constraint("Tangent", 71, 2, 72, 2),
    Sketcher.Constraint("Tangent", 72, 1, 73, 1),
    Sketcher.Constraint("Tangent", 73, 2, 66, 2),
    Sketcher.Constraint("Vertical", 15),
    Sketcher.Constraint("Vertical", 23),
    Sketcher.Constraint("Vertical", 28),
    Sketcher.Constraint("Vertical", 39),
    Sketcher.Constraint("Vertical", 50),
    Sketcher.Constraint("Vertical", 58),
    Sketcher.Constraint("Coincident", 22, 3, -1, 1),
    Sketcher.Constraint("Coincident", 30, 3, -1, 1),
    Sketcher.Constraint("Coincident", 37, 3, -1, 1),
    Sketcher.Constraint("Coincident", 51, 3, -1, 1),
    Sketcher.Constraint("Coincident", 16, 3, 10, 3),
    Sketcher.Constraint("Coincident", 61, 3, 57, 3),
    Sketcher.Constraint("Coincident", 67, 3, 6, 3),
    Sketcher.Constraint("Equal", 1, 3),
    Sketcher.Constraint("Equal", 3, 5),
    Sketcher.Constraint("Equal", 5, 7),
    Sketcher.Constraint("Equal", 2, 8),
    Sketcher.Constraint("Equal", 7, 9),
    Sketcher.Constraint("Equal", 8, 10),
    Sketcher.Constraint("Equal", 9, 11),
    Sketcher.Constraint("Equal", 11, 13),
    Sketcher.Constraint("Equal", 13, 14),
    Sketcher.Constraint("Equal", 10, 16),
    Sketcher.Constraint("Equal", 14, 17),
    Sketcher.Constraint("Equal", 17, 19),
    Sketcher.Constraint("Equal", 19, 21),
    Sketcher.Constraint("Equal", 21, 24),
    Sketcher.Constraint("Equal", 16, 26),
    Sketcher.Constraint("Equal", 24, 27),
    Sketcher.Constraint("Equal", 27, 29),
    Sketcher.Constraint("Equal", 22, 30),
    Sketcher.Constraint("Equal", 29, 31),
    Sketcher.Constraint("Equal", 31, 33),
    Sketcher.Constraint("Equal", 33, 36),
    Sketcher.Constraint("Equal", 30, 37),
    Sketcher.Constraint("Equal", 36, 38),
    Sketcher.Constraint("Equal", 38, 40),
    Sketcher.Constraint("Equal", 26, 41),
    Sketcher.Constraint("Equal", 40, 42),
    Sketcher.Constraint("Equal", 35, 43),
    Sketcher.Constraint("Equal", 42, 45),
    Sketcher.Constraint("Equal", 45, 47),
    Sketcher.Constraint("Equal", 47, 49),
    Sketcher.Constraint("Equal", 37, 51),
    Sketcher.Constraint("Equal", 49, 52),
    Sketcher.Constraint("Equal", 52, 54),
    Sketcher.Constraint("Equal", 54, 56),
    Sketcher.Constraint("Equal", 41, 57),
    Sketcher.Constraint("Equal", 56, 59),
    Sketcher.Constraint("Equal", 59, 60),
    Sketcher.Constraint("Equal", 57, 61),
    Sketcher.Constraint("Equal", 60, 62),
    Sketcher.Constraint("Equal", 61, 63),
    Sketcher.Constraint("Equal", 62, 64),
    Sketcher.Constraint("Equal", 64, 66),
    Sketcher.Constraint("Equal", 6, 67),
    Sketcher.Constraint("Equal", 66, 68),
    Sketcher.Constraint("Equal", 68, 70),
    Sketcher.Constraint("Equal", 63, 71),
    Sketcher.Constraint("Equal", 70, 72),
    Sketcher.Constraint("Equal", 0, 73),
    Sketcher.Constraint("Symmetric", 10, 3, 57, 3, -1, 1),
    Sketcher.Constraint("Symmetric", 27, 3, 40, 3, -2),
    Sketcher.Constraint("Symmetric", 36, 3, 42, 3, -2),
    Sketcher.Constraint("Symmetric", 33, 3, 45, 3, -2),
    Sketcher.Constraint("Symmetric", 19, 3, 54, 3, -2),
    Sketcher.Constraint("Symmetric", 17, 3, 56, 3, -2),
    Sketcher.Constraint("Symmetric", 8, 3, 63, 3, -2),
    Sketcher.Constraint("Symmetric", 7, 3, 66, 3, -2),
    Sketcher.Constraint("Symmetric", 3, 3, 70, 3, -2),
    Sketcher.Constraint("Symmetric", 1, 3, 72, 3, -2),
    Sketcher.Constraint("Symmetric", 24, 1, 48, 2, -2),
    Sketcher.Constraint("Symmetric", 12, 2, 64, 1, -2),
    Sketcher.Constraint("Parallel", 4, 12),
    Sketcher.Constraint("Perpendicular", 18, 20),
    Sketcher.Constraint("Parallel", 12, 25),
    Sketcher.Constraint("Parallel", 20, 32),
    Sketcher.Constraint("Perpendicular", 32, 34),
    Sketcher.Constraint("Perpendicular", 25, 44),
    Sketcher.Constraint("Perpendicular", 44, 46),
    Sketcher.Constraint("Perpendicular", 34, 48),
    Sketcher.Constraint("Parallel", 46, 53),
    Sketcher.Constraint("Parallel", 65, 69),
    Sketcher.Constraint("Horizontal", 30, 2, 31, 1),
    Sketcher.Constraint("Vertical", 20, 2, 22, 2),
    Sketcher.Constraint("Vertical", 21, 3, 24, 1),
    Sketcher.Constraint("Vertical", 24, 3, 25, 2),
    Sketcher.Constraint("Radius", 0, Q("20 mm")),
    Sketcher.Constraint("Radius", 1, Q("2 mm")),
    Sketcher.Constraint("Radius", 2, Q("6 mm")),
    Sketcher.Constraint("Radius", 6, Q("14 mm")),
    Sketcher.Constraint("Radius", 22, Q("12 mm")),
    Sketcher.Constraint("Radius", 35, Q("21 mm")),
    Sketcher.Constraint("DistanceX", 2, 3, -1, 1, Q("25 mm")),
    Sketcher.Constraint("DistanceY", 0, 3, -1, 1, Q("42.5 mm")),
    Sketcher.Constraint("DistanceX", 27, 3, -1, 1, Q("4.5 mm")),
    Sketcher.Constraint("DistanceY", -1, 1, 19, 1, Q("9.75 mm")),
    Sketcher.Constraint("DistanceY", 23, 2, 23, 1, Q("2.309401 mm")),
    Sketcher.Constraint("DistanceY", 28, 2, 28, 1, Q("15.473431 mm")),
    Sketcher.Constraint("DistanceY", 8, 3, -1, 1, Q("8.698801 mm")),
    Sketcher.Constraint("DistanceX", 11, 3, -1, 1, Q("22.854102 mm")),
    Sketcher.Constraint("Distance", 4, Q("7.951642 mm")),
    Sketcher.Constraint("DistanceX", 9, 3, -1, 1, Q("27.152712 mm")),
    Sketcher.Constraint("DistanceY", -1, 1, 26, 3, Q("34.602469 mm")),
    Sketcher.Constraint("DistanceY", -1, 1, 35, 3, Q("32.47908 mm")),
    Sketcher.Constraint("DistanceX", 36, 3, -1, 1, Q("8.02675 mm")),
    Sketcher.Constraint("DistanceY", 1, 1, -1, 1, Q("22.38529 mm")),
    Sketcher.Constraint("DistanceX", 2, 2, -1, 1, Q("23.22351 mm")),
    Sketcher.Constraint("DistanceY", 2, 2, -1, 1, Q("20.172692 mm")),
])
pocket2 = body.newObject("PartDesign::Pocket", "Pocket001")
pocket2.Profile = sketch4
pocket2.Length = 3.175
pocket2.Reversed = True

doc.recompute()
